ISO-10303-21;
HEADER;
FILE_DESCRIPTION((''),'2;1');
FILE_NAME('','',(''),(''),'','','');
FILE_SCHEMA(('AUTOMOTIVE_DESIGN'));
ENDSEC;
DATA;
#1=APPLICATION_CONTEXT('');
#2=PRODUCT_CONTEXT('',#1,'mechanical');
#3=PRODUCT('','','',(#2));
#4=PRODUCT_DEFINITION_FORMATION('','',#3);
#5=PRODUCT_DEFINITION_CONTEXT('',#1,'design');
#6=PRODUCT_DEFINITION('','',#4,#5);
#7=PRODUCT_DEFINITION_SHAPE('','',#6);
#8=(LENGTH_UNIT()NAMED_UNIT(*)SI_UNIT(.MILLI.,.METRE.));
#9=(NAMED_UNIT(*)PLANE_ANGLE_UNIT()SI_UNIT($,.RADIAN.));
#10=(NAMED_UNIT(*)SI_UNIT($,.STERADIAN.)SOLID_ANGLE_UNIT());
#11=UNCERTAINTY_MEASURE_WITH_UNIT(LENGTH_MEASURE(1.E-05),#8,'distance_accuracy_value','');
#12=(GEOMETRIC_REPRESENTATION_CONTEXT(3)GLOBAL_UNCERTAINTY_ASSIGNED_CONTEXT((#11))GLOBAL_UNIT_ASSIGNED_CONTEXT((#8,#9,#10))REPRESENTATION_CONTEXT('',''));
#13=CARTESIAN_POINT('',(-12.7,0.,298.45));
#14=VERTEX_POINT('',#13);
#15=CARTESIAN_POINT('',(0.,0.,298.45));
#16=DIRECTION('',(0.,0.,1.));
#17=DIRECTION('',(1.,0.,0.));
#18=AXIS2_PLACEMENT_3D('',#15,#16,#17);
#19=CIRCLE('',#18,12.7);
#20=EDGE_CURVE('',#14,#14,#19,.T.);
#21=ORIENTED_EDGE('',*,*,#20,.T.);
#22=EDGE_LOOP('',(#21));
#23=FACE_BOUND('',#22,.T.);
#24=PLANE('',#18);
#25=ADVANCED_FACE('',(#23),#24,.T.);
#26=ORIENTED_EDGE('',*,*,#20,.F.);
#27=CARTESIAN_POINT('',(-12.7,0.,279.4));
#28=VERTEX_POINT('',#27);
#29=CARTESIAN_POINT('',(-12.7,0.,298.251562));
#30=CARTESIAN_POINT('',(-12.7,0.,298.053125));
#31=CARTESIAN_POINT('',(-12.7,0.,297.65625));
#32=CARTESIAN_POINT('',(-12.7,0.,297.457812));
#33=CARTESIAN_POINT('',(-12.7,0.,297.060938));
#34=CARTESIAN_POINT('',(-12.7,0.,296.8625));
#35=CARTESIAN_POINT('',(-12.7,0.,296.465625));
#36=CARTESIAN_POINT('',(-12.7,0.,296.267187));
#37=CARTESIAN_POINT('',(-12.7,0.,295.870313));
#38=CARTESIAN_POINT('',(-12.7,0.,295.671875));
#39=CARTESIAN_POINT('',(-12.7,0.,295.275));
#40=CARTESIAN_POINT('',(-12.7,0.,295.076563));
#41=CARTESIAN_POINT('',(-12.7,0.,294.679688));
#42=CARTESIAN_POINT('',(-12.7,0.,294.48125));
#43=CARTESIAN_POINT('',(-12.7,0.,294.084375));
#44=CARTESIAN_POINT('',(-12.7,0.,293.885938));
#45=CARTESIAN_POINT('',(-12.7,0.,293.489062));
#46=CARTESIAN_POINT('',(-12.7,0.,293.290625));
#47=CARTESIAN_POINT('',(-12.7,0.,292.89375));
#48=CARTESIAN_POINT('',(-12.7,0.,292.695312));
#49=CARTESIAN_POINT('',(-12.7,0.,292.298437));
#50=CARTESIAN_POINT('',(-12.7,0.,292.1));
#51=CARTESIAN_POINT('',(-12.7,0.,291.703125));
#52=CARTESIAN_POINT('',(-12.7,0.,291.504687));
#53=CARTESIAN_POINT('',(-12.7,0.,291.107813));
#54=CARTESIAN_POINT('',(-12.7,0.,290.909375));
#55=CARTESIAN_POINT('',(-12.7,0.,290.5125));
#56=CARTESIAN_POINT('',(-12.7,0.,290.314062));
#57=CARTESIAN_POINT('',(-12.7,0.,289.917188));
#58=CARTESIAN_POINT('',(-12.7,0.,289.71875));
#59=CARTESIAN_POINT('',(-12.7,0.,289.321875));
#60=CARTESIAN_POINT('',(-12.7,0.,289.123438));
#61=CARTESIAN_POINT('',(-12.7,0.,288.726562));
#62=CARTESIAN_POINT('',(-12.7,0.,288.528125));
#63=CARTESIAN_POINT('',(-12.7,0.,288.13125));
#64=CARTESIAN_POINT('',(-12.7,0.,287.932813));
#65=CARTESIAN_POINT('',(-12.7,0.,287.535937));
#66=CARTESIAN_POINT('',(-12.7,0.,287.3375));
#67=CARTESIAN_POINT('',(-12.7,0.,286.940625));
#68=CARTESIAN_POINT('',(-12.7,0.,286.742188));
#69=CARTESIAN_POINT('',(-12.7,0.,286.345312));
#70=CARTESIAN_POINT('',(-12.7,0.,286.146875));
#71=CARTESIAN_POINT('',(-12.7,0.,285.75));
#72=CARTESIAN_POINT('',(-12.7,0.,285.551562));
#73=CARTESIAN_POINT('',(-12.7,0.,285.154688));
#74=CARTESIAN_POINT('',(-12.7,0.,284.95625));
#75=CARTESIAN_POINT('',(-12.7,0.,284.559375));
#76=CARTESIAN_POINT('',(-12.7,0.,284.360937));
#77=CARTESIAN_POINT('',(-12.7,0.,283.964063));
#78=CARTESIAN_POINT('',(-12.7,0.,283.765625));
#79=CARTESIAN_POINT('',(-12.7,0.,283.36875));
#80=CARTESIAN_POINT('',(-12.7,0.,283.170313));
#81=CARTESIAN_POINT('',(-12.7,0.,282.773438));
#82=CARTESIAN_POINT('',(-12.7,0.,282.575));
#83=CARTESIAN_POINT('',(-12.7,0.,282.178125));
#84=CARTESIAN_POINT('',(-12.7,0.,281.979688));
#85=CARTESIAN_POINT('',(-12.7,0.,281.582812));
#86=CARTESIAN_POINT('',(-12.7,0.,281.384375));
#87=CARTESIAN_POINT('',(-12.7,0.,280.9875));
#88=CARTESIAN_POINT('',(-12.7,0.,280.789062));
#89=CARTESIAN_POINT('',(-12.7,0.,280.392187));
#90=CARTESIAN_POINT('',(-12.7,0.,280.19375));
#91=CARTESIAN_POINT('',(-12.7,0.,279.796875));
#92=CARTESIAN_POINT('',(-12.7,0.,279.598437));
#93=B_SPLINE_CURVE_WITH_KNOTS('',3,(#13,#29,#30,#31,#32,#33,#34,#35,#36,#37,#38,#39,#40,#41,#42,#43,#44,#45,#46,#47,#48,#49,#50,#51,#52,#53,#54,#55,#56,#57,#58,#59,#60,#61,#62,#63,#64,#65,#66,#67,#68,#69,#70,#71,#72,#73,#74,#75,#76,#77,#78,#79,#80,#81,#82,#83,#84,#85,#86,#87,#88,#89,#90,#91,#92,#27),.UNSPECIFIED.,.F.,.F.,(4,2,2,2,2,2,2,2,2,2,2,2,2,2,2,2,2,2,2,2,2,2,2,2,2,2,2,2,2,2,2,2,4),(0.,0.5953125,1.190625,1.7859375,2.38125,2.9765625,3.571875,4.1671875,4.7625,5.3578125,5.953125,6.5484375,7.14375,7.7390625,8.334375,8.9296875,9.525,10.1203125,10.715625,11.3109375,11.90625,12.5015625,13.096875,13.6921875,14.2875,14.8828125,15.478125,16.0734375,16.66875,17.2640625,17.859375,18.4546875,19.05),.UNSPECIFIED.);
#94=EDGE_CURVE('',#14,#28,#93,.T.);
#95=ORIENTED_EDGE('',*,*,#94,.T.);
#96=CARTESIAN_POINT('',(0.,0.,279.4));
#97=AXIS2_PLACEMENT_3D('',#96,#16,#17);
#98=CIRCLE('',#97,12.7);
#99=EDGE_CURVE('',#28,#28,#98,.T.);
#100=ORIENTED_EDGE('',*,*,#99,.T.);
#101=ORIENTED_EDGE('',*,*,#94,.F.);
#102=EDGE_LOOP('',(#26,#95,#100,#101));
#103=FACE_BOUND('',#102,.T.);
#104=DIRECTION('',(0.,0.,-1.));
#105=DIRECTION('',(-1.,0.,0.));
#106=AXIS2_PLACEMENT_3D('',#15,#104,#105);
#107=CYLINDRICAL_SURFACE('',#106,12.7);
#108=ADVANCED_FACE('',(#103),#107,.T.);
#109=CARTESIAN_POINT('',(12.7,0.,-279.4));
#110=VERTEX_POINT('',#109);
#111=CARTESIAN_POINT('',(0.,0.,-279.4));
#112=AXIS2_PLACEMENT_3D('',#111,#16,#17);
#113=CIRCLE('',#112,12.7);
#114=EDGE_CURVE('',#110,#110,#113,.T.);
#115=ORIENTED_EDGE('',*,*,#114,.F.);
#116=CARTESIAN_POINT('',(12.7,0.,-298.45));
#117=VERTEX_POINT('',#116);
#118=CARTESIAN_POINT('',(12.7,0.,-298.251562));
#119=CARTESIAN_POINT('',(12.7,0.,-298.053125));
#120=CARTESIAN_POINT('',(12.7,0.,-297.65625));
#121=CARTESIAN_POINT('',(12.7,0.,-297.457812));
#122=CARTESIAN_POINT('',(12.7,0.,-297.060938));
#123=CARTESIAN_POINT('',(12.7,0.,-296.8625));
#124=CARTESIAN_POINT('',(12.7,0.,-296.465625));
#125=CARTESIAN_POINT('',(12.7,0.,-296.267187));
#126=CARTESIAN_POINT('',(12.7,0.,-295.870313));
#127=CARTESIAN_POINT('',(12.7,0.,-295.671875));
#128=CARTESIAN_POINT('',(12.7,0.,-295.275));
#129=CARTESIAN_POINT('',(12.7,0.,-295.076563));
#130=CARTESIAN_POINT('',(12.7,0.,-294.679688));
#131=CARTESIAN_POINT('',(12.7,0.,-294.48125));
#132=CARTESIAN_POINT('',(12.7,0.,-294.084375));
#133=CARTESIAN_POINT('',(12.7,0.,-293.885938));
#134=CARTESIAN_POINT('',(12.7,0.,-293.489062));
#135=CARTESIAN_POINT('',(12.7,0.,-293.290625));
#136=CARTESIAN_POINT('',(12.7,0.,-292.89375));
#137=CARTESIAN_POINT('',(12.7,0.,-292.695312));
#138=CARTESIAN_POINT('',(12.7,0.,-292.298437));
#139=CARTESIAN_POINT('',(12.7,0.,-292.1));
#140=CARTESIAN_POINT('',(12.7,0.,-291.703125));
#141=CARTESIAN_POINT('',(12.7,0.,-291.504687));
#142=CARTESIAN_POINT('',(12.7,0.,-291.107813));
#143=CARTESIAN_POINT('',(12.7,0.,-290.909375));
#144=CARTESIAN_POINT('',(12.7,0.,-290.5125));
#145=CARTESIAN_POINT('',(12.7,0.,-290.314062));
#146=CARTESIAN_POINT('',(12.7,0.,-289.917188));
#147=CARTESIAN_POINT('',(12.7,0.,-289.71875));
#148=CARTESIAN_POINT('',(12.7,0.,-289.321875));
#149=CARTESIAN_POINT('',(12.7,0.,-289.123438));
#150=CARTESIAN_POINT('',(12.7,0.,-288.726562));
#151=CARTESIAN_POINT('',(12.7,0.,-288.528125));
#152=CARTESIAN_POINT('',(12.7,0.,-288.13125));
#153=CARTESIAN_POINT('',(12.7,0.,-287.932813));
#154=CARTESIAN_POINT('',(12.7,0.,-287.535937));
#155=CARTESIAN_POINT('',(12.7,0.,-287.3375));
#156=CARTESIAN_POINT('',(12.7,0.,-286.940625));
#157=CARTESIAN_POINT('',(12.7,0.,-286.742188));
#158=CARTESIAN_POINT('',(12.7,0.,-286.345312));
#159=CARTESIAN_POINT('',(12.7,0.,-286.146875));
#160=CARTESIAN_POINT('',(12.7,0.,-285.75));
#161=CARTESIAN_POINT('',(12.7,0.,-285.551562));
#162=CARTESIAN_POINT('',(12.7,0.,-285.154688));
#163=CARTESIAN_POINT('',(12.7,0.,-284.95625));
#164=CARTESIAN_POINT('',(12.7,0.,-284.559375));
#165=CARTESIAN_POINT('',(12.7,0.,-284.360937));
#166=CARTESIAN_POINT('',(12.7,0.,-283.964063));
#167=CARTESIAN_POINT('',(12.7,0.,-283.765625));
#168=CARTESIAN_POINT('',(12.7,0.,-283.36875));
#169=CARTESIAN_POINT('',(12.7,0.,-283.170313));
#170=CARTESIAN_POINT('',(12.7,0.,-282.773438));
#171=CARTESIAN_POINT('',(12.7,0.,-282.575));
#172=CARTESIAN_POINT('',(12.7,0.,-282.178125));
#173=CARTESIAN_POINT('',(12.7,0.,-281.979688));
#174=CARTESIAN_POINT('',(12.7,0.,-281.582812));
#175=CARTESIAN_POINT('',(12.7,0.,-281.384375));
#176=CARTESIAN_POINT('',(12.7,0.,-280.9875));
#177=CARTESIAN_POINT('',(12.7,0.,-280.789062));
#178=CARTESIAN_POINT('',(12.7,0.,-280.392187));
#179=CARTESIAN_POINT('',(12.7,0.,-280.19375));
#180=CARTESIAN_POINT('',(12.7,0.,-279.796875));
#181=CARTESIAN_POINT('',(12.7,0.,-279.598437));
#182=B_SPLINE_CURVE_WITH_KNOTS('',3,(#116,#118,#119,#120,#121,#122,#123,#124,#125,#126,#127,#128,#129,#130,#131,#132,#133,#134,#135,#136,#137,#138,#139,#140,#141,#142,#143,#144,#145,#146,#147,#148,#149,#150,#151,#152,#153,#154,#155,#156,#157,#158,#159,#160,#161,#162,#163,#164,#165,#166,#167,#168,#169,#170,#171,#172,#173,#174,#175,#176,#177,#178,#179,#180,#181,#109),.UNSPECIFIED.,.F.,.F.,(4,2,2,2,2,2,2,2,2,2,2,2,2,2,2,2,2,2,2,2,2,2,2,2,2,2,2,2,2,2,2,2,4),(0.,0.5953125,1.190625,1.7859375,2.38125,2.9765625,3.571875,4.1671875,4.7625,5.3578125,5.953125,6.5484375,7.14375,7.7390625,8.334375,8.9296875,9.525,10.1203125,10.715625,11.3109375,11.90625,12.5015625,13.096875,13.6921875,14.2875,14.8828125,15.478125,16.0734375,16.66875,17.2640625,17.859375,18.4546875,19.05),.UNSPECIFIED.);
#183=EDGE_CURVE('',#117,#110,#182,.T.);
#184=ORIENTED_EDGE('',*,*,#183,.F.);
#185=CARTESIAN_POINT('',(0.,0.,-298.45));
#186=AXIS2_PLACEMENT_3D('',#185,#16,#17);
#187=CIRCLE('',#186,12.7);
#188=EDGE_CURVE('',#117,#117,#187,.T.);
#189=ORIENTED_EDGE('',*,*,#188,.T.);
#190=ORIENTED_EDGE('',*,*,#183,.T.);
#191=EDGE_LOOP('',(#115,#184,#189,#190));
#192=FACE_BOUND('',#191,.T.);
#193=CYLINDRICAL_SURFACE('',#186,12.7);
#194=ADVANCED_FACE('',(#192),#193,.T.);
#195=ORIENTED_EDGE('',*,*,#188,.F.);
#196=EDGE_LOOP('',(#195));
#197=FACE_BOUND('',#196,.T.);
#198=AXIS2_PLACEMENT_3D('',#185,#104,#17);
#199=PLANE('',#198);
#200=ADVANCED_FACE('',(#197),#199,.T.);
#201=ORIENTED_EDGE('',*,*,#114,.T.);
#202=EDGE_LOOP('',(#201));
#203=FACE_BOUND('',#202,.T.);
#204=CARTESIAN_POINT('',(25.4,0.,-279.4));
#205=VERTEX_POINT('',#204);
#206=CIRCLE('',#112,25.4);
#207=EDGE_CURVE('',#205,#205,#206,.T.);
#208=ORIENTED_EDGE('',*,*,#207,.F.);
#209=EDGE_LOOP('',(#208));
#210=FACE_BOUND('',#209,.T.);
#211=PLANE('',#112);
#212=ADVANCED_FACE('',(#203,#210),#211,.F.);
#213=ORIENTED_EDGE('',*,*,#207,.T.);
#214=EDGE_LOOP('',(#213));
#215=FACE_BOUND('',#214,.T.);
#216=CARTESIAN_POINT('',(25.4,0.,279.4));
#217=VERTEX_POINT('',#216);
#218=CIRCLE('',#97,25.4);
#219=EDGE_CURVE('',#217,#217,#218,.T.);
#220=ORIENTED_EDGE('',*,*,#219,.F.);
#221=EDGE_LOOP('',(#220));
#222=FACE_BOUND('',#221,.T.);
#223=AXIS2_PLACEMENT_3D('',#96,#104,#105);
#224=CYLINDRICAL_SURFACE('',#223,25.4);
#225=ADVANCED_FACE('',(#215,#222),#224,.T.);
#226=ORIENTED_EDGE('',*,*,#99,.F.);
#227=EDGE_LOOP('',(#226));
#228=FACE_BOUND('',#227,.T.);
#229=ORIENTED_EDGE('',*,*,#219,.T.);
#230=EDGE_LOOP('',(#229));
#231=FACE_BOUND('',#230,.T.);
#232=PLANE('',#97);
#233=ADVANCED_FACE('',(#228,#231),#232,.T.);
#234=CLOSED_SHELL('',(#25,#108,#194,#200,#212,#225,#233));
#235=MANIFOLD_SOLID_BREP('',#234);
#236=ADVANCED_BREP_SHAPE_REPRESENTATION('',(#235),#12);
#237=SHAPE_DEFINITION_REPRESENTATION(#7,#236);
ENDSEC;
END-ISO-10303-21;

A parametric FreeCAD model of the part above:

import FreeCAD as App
import Part
import Sketcher
Q = App.Units.Quantity

doc = App.newDocument("Part")
params = doc.addObject("Spreadsheet::Sheet", "Params")
for row, (alias, value) in enumerate([
    ("sketch1_diameter", "2 in"),
    ("pad1_length", "22 in"),
    ("sketch2_diameter", "1 in"),
    ("pad2_length", "0.75 in"),
], start=1):
    params.set(f"A{row}", alias)
    params.set(f"B{row}", "=" + value)
    params.setAlias(f"B{row}", alias)

body = doc.addObject("PartDesign::Body", "Body")

# Sketch on XY plane
sketch1 = body.newObject("Sketcher::SketchObject", "Sketch")
sketch1.AttachmentSupport = (doc.getObject("XY_Plane"), [""])
sketch1.MapMode = "FlatFace"
sketch1.addGeometry(Part.Circle(App.Vector(0, 0, 0), App.Vector(0, 0, 1), 25.4), False)
sketch1.addConstraint(Sketcher.Constraint("Coincident", 0, 3, -1, 1))
sketch1.addConstraint(Sketcher.Constraint("Diameter", 0, Q("2 in")))
sketch1.setExpression("Constraints[1]", "Params.sketch1_diameter")
pad1 = body.newObject("PartDesign::Pad", "Pad")
pad1.Profile = sketch1
pad1.setExpression("Length", "Params.pad1_length")
pad1.Midplane = True

# Sketch on XY plane
sketch2 = body.newObject("Sketcher::SketchObject", "Sketch001")
sketch2.AttachmentSupport = (doc.getObject("XY_Plane"), [""])
sketch2.MapMode = "FlatFace"
sketch2.AttachmentOffset = App.Placement(App.Vector(0, 0, 11 * 25.4), App.Rotation())
sketch2.addGeometry(Part.Circle(App.Vector(0, 0, 0), App.Vector(0, 0, 1), 12.7), False)
sketch2.addConstraint(Sketcher.Constraint("Coincident", 0, 3, -1, 1))
sketch2.addConstraint(Sketcher.Constraint("Diameter", 0, Q("1 in")))
sketch2.setExpression("Constraints[1]", "Params.sketch2_diameter")
pad2 = body.newObject("PartDesign::Pad", "Pad001")
pad2.Profile = sketch2
pad2.setExpression("Length", "Params.pad2_length")
doc.recompute()

mirrored = body.newObject("PartDesign::Mirrored", "Mirrored")
mirrored.Originals = [pad2]
mirrored.MirrorPlane = (doc.getObject("XY_Plane"), [""])
body.Tip = mirrored

doc.recompute()
